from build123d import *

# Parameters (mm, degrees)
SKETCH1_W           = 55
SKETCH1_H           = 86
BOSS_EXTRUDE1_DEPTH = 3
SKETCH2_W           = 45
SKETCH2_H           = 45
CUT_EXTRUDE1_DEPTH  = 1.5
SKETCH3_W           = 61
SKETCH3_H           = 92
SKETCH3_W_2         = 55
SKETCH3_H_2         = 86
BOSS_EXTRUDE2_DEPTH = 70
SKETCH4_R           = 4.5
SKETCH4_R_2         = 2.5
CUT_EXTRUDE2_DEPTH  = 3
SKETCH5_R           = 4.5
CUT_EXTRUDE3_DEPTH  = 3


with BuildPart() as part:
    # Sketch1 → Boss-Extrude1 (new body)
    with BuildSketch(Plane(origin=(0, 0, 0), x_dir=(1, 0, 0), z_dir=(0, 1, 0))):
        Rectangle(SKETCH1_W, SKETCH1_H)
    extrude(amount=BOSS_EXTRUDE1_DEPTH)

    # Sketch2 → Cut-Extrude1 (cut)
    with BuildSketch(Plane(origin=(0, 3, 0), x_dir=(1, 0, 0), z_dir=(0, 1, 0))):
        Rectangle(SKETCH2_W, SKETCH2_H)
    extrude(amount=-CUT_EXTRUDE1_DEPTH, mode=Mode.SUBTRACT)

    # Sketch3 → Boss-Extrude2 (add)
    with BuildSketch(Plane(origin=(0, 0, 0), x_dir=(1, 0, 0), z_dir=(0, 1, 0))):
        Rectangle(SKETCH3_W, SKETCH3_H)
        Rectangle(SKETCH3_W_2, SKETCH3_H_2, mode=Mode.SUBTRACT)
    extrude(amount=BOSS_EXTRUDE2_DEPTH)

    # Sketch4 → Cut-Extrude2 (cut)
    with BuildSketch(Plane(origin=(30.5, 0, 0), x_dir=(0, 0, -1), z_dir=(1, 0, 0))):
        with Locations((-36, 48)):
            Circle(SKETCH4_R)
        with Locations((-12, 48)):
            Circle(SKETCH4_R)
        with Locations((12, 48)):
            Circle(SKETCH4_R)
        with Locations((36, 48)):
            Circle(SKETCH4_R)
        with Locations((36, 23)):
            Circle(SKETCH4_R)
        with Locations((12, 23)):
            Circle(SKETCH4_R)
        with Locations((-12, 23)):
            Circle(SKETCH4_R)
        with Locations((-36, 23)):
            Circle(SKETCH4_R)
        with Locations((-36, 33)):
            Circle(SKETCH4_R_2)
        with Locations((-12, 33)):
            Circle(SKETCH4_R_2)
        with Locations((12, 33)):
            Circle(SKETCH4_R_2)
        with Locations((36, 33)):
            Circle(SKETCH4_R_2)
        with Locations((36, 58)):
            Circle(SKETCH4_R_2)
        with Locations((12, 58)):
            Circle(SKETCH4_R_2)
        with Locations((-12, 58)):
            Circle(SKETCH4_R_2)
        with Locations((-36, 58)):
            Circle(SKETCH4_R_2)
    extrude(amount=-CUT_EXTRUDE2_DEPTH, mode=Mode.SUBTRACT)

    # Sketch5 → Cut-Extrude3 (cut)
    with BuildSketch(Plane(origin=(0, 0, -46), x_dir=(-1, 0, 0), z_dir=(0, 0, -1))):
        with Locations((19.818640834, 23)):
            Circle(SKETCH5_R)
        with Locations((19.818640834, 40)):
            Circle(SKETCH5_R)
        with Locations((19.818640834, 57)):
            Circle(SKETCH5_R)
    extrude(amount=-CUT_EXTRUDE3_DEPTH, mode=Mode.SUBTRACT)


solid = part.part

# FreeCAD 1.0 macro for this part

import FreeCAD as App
import Part
import Sketcher

V = App.Vector
Q = App.Units.Quantity

doc = App.newDocument("Part")
body = doc.addObject("PartDesign::Body", "Body")

# Sketch on XZ plane
sketch1 = body.newObject("Sketcher::SketchObject", "Sketch")
sketch1.AttachmentSupport = (doc.getObject("XZ_Plane"), [""])
sketch1.MapMode = "FlatFace"
sketch1.addGeometry([
    Part.LineSegment(V(-27.5, -43, 0), V(-27.5, 43, 0)),
    Part.LineSegment(V(-27.5, 43, 0), V(27.5, 43, 0)),
    Part.LineSegment(V(27.5, 43, 0), V(27.5, -43, 0)),
    Part.LineSegment(V(27.5, -43, 0), V(-27.5, -43, 0)),
], False)
sketch1.addConstraint([
    Sketcher.Constraint("Coincident", 0, 2, 1, 1),
    Sketcher.Constraint("Coincident", 1, 2, 2, 1),
    Sketcher.Constraint("Coincident", 2, 2, 3, 1),
    Sketcher.Constraint("Coincident", 3, 2, 0, 1),
    Sketcher.Constraint("Vertical", 0),
    Sketcher.Constraint("Horizontal", 1),
    Sketcher.Constraint("Vertical", 2),
    Sketcher.Constraint("Horizontal", 3),
    Sketcher.Constraint("Symmetric", 0, 2, 2, 2, -1, 1),
    Sketcher.Constraint("DistanceX", 1, 1, 1, 2, Q("55 mm")),
    Sketcher.Constraint("DistanceY", 0, 1, 0, 2, Q("86 mm")),
])
pad1 = body.newObject("PartDesign::Pad", "Pad")
pad1.Profile = sketch1
pad1.Length = 3
pad1.Reversed = True

# Sketch on XZ plane
sketch2 = body.newObject("Sketcher::SketchObject", "Sketch001")
sketch2.AttachmentSupport = (doc.getObject("XZ_Plane"), [""])
sketch2.MapMode = "FlatFace"
sketch2.AttachmentOffset = App.Placement(V(0, 0, -3), App.Rotation())
sketch2.addGeometry([
    Part.LineSegment(V(-22.5, -22.5, 0), V(-22.5, 22.5, 0)),
    Part.LineSegment(V(-22.5, 22.5, 0), V(22.5, 22.5, 0)),
    Part.LineSegment(V(22.5, 22.5, 0), V(22.5, -22.5, 0)),
    Part.LineSegment(V(22.5, -22.5, 0), V(-22.5, -22.5, 0)),
], False)
sketch2.addConstraint([
    Sketcher.Constraint("Coincident", 0, 2, 1, 1),
    Sketcher.Constraint("Coincident", 1, 2, 2, 1),
    Sketcher.Constraint("Coincident", 2, 2, 3, 1),
    Sketcher.Constraint("Coincident", 3, 2, 0, 1),
    Sketcher.Constraint("Vertical", 0),
    Sketcher.Constraint("Horizontal", 1),
    Sketcher.Constraint("Vertical", 2),
    Sketcher.Constraint("Horizontal", 3),
    Sketcher.Constraint("Symmetric", 0, 2, 2, 2, -1, 1),
    Sketcher.Constraint("Equal", 3, 0),
    Sketcher.Constraint("DistanceX", 1, 1, 1, 2, Q("45 mm")),
])
pocket1 = body.newObject("PartDesign::Pocket", "Pocket")
pocket1.Profile = sketch2
pocket1.Length = 1.5
pocket1.Reversed = True

# Sketch on XZ plane
sketch3 = body.newObject("Sketcher::SketchObject", "Sketch002")
sketch3.AttachmentSupport = (doc.getObject("XZ_Plane"), [""])
sketch3.MapMode = "FlatFace"
sketch3.addGeometry([
    Part.LineSegment(V(-30.5, -46, 0), V(-30.5, 46, 0)),  # 0
    Part.LineSegment(V(-30.5, 46, 0), V(30.5, 46, 0)),  # 1
    Part.LineSegment(V(30.5, 46, 0), V(30.5, -46, 0)),  # 2
    Part.LineSegment(V(30.5, -46, 0), V(-30.5, -46, 0)),  # 3
    Part.LineSegment(V(27.5, 43, 0), V(-27.5, 43, 0)),  # 4
    Part.LineSegment(V(-27.5, 43, 0), V(-27.5, -43, 0)),  # 5
    Part.LineSegment(V(-27.5, -43, 0), V(27.5, -43, 0)),  # 6
    Part.LineSegment(V(27.5, -43, 0), V(27.5, 43, 0)),  # 7
], False)
sketch3.addConstraint([
    Sketcher.Constraint("Coincident", 0, 2, 1, 1),
    Sketcher.Constraint("Coincident", 1, 2, 2, 1),
    Sketcher.Constraint("Coincident", 2, 2, 3, 1),
    Sketcher.Constraint("Coincident", 3, 2, 0, 1),
    Sketcher.Constraint("Coincident", 4, 2, 5, 1),
    Sketcher.Constraint("Coincident", 5, 2, 6, 1),
    Sketcher.Constraint("Coincident", 6, 2, 7, 1),
    Sketcher.Constraint("Coincident", 7, 2, 4, 1),
    Sketcher.Constraint("Vertical", 0),
    Sketcher.Constraint("Horizontal", 1),
    Sketcher.Constraint("Vertical", 2),
    Sketcher.Constraint("Horizontal", 3),
    Sketcher.Constraint("Horizontal", 4),
    Sketcher.Constraint("Vertical", 5),
    Sketcher.Constraint("Horizontal", 6),
    Sketcher.Constraint("Vertical", 7),
    Sketcher.Constraint("Symmetric", 0, 2, 2, 2, -1, 1),
    Sketcher.Constraint("Symmetric", 4, 2, 6, 2, -1, 1),
    Sketcher.Constraint("DistanceX", 1, 1, 1, 2, Q("61 mm")),
    Sketcher.Constraint("DistanceX", 4, 2, 4, 1, Q("55 mm")),
    Sketcher.Constraint("DistanceY", 0, 1, 0, 2, Q("92 mm")),
    Sketcher.Constraint("DistanceY", 5, 2, 5, 1, Q("86 mm")),
])
pad2 = body.newObject("PartDesign::Pad", "Pad001")
pad2.Profile = sketch3
pad2.Length = 70
pad2.Reversed = True

# Sketch on YZ plane
sketch4 = body.newObject("Sketcher::SketchObject", "Sketch003")
sketch4.AttachmentSupport = (doc.getObject("YZ_Plane"), [""])
sketch4.MapMode = "FlatFace"
sketch4.AttachmentOffset = App.Placement(V(0, 0, 30.5), App.Rotation())
sketch4.addGeometry([
    Part.Circle(V(48, 36, 0), V(0, 0, 1), 4.5),  # 0
    Part.Circle(V(48, 12, 0), V(0, 0, 1), 4.5),  # 1
    Part.Circle(V(48, -12, 0), V(0, 0, 1), 4.5),  # 2
    Part.Circle(V(48, -36, 0), V(0, 0, 1), 4.5),  # 3
    Part.Circle(V(23, -36, 0), V(0, 0, 1), 4.5),  # 4
    Part.Circle(V(23, -12, 0), V(0, 0, 1), 4.5),  # 5
    Part.Circle(V(23, 12, 0), V(0, 0, 1), 4.5),  # 6
    Part.Circle(V(23, 36, 0), V(0, 0, 1), 4.5),  # 7
    Part.Circle(V(33, 36, 0), V(0, 0, 1), 2.5),  # 8
    Part.Circle(V(33, 12, 0), V(0, 0, 1), 2.5),  # 9
    Part.Circle(V(33, -12, 0), V(0, 0, 1), 2.5),  # 10
    Part.Circle(V(33, -36, 0), V(0, 0, 1), 2.5),  # 11
    Part.Circle(V(58, -36, 0), V(0, 0, 1), 2.5),  # 12
    Part.Circle(V(58, -12, 0), V(0, 0, 1), 2.5),  # 13
    Part.Circle(V(58, 12, 0), V(0, 0, 1), 2.5),  # 14
    Part.Circle(V(58, 36, 0), V(0, 0, 1), 2.5),  # 15
], False)
sketch4.addConstraint([
    Sketcher.Constraint("Equal", 0, 1),
    Sketcher.Constraint("Equal", 1, 2),
    Sketcher.Constraint("Equal", 2, 3),
    Sketcher.Constraint("Equal", 3, 4),
    Sketcher.Constraint("Equal", 4, 5),
    Sketcher.Constraint("Equal", 5, 6),
    Sketcher.Constraint("Equal", 6, 7),
    Sketcher.Constraint("Equal", 8, 9),
    Sketcher.Constraint("Equal", 9, 10),
    Sketcher.Constraint("Equal", 10, 11),
    Sketcher.Constraint("Equal", 11, 12),
    Sketcher.Constraint("Equal", 12, 13),
    Sketcher.Constraint("Equal", 13, 14),
    Sketcher.Constraint("Equal", 14, 15),
    Sketcher.Constraint("Symmetric", 1, 3, 2, 3, -1),
    Sketcher.Constraint("Symmetric", 0, 3, 3, 3, -1),
    Sketcher.Constraint("Symmetric", 5, 3, 6, 3, -1),
    Sketcher.Constraint("Symmetric", 4, 3, 7, 3, -1),
    Sketcher.Constraint("Symmetric", 9, 3, 10, 3, -1),
    Sketcher.Constraint("Symmetric", 8, 3, 11, 3, -1),
    Sketcher.Constraint("Symmetric", 13, 3, 14, 3, -1),
    Sketcher.Constraint("Symmetric", 12, 3, 15, 3, -1),
    Sketcher.Constraint("Horizontal", 3, 3, 4, 3),
    Sketcher.Constraint("Horizontal", 2, 3, 5, 3),
    Sketcher.Constraint("Horizontal", 7, 3, 8, 3),
    Sketcher.Constraint("Horizontal", 6, 3, 9, 3),
    Sketcher.Constraint("Horizontal", 11, 3, 12, 3),
    Sketcher.Constraint("Horizontal", 10, 3, 13, 3),
    Sketcher.Constraint("Vertical", 0, 3, 1, 3),
    Sketcher.Constraint("Vertical", 4, 3, 5, 3),
    Sketcher.Constraint("Vertical", 8, 3, 9, 3),
    Sketcher.Constraint("Vertical", 12, 3, 13, 3),
    Sketcher.Constraint("Diameter", 0, Q("9 mm")),
    Sketcher.Constraint("Diameter", 8, Q("5 mm")),
    Sketcher.Constraint("DistanceX", -1, 1, 0, 3, Q("48 mm")),
    Sketcher.Constraint("DistanceY", -1, 1, 0, 3, Q("36 mm")),
    Sketcher.Constraint("DistanceY", -1, 1, 1, 3, Q("12 mm")),
    Sketcher.Constraint("DistanceX", -1, 1, 4, 3, Q("23 mm")),
    Sketcher.Constraint("DistanceX", -1, 1, 8, 3, Q("33 mm")),
    Sketcher.Constraint("DistanceX", -1, 1, 12, 3, Q("58 mm")),
])
pocket2 = body.newObject("PartDesign::Pocket", "Pocket001")
pocket2.Profile = sketch4
pocket2.Length = 3

# Sketch on XY plane
sketch5 = body.newObject("Sketcher::SketchObject", "Sketch004")
sketch5.AttachmentSupport = (doc.getObject("XY_Plane"), [""])
sketch5.MapMode = "FlatFace"
sketch5.AttachmentOffset = App.Placement(V(0, 0, -46), App.Rotation())
sketch5.addGeometry([
    Part.Circle(V(-19.818641, 23, 0), V(0, 0, 1), 4.5),
    Part.Circle(V(-19.818641, 40, 0), V(0, 0, 1), 4.5),
    Part.Circle(V(-19.818641, 57, 0), V(0, 0, 1), 4.5),
], False)
sketch5.addConstraint([
    Sketcher.Constraint("Equal", 0, 1),
    Sketcher.Constraint("Equal", 1, 2),
    Sketcher.Constraint("Vertical", 0, 3, 1, 3),
    Sketcher.Constraint("Vertical", 1, 3, 2, 3),
    Sketcher.Constraint("Diameter", 0, Q("9 mm")),
    Sketcher.Constraint("DistanceY", -1, 1, 0, 3, Q("23 mm")),
    Sketcher.Constraint("DistanceY", -1, 1, 1, 3, Q("40 mm")),
    Sketcher.Constraint("DistanceY", -1, 1, 2, 3, Q("57 mm")),
    Sketcher.Constraint("DistanceX", 0, 3, -1, 1, Q("19.818641 mm")),
])
pocket3 = body.newObject("PartDesign::Pocket", "Pocket002")
pocket3.Profile = sketch5
pocket3.Length = 3
pocket3.Reversed = True

doc.recompute()
